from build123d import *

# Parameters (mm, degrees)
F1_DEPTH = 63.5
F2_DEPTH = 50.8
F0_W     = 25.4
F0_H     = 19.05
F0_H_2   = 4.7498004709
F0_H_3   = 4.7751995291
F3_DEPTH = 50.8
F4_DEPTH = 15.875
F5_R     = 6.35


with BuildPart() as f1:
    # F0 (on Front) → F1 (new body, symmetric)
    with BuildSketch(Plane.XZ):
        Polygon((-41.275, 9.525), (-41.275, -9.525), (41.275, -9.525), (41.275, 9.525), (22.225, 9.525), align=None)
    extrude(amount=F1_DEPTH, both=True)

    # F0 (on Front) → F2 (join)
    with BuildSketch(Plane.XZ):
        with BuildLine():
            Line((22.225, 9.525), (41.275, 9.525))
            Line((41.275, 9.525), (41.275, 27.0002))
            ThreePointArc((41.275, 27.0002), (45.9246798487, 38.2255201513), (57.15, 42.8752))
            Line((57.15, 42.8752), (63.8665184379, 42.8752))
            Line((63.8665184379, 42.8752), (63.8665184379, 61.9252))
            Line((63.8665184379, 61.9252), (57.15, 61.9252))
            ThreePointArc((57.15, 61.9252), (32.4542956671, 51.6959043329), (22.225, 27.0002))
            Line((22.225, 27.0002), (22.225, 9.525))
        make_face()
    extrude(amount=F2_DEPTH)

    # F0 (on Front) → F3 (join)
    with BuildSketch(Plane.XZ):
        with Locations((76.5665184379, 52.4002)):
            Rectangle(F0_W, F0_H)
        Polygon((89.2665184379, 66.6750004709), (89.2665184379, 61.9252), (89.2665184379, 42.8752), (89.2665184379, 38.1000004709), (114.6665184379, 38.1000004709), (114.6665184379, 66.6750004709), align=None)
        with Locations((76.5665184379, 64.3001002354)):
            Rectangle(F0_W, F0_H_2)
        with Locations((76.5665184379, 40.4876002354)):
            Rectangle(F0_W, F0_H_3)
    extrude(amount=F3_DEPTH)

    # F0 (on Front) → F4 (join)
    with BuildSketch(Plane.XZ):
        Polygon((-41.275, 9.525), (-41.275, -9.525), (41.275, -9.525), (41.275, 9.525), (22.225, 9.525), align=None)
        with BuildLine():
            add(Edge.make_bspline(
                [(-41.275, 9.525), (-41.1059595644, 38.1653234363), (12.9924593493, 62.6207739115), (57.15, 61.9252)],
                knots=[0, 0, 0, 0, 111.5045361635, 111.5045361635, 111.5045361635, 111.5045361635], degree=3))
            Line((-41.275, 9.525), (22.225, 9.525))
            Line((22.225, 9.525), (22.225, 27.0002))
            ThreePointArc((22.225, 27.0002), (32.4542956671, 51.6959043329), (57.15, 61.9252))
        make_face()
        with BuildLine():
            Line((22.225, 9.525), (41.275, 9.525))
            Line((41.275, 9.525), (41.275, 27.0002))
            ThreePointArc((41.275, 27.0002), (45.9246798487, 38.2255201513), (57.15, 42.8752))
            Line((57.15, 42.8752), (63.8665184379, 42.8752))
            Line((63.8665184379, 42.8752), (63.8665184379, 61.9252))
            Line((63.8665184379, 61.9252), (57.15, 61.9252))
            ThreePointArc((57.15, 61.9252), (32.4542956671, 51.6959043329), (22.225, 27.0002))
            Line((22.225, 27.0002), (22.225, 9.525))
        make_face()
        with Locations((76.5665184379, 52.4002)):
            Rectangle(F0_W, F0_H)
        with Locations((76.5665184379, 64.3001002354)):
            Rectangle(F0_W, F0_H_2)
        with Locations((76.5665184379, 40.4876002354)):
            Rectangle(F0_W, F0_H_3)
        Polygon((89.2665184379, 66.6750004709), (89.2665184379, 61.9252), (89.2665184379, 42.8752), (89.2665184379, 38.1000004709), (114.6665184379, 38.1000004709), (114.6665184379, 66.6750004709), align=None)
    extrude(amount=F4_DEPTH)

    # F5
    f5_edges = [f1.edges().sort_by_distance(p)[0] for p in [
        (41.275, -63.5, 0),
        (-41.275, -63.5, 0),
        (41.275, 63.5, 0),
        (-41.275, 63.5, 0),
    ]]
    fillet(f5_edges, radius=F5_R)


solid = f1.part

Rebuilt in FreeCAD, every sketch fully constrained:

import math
import FreeCAD as App
import Part
import Sketcher
from FreeCAD import Vector
Q = App.Units.Quantity


def edges_at(feature, points):
    """Names of the edges that pass closest to the given points."""
    edges = feature.Shape.Edges
    near = lambda p: min(range(len(edges)), key=lambda i: edges[i].distToShape(Part.Vertex(*p))[0])
    return sorted({f"Edge{near(p) + 1}" for p in points})

doc = App.newDocument("Part")
body = doc.addObject("PartDesign::Body", "Body")

sketch1 = body.newObject("Sketcher::SketchObject", "Sketch")
sketch1.AttachmentSupport = (doc.getObject("XZ_Plane"), [""])
sketch1.MapMode = "FlatFace"
sketch1.addGeometry(Part.LineSegment(Vector(-41, 10, 0), Vector(-41, -10, 0)), False)
sketch1.addGeometry(Part.LineSegment(Vector(-41, -10, 0), Vector(41, -10, 0)), False)
sketch1.addGeometry(Part.LineSegment(Vector(41, -10, 0), Vector(41, 10, 0)), False)
sketch1.addGeometry(Part.LineSegment(Vector(41, 10, 0), Vector(-41, 10, 0)), False)
sketch1.addConstraint(Sketcher.Constraint("Coincident", 0, 2, 1, 1))
sketch1.addConstraint(Sketcher.Constraint("Coincident", 1, 2, 2, 1))
sketch1.addConstraint(Sketcher.Constraint("Coincident", 2, 2, 3, 1))
sketch1.addConstraint(Sketcher.Constraint("Coincident", 3, 2, 0, 1))
sketch1.addConstraint(Sketcher.Constraint("Vertical", 0))
sketch1.addConstraint(Sketcher.Constraint("Horizontal", 1))
sketch1.addConstraint(Sketcher.Constraint("Vertical", 2))
sketch1.addConstraint(Sketcher.Constraint("Horizontal", 3))
sketch1.addConstraint(Sketcher.Constraint("Symmetric", 0, 2, 2, 2, -1, 1))
sketch1.addConstraint(Sketcher.Constraint("DistanceX", 1, 1, 1, 2, Q("3.25 in")))
sketch1.addConstraint(Sketcher.Constraint("DistanceY", 0, 2, 0, 1, Q("0.75 in")))
pad1 = body.newObject("PartDesign::Pad", "Pad")
pad1.Profile = sketch1
pad1.Length = Q("5 in")
pad1.Midplane = True

sketch2 = body.newObject("Sketcher::SketchObject", "Sketch001")
sketch2.AttachmentSupport = (doc.getObject("XZ_Plane"), [""])
sketch2.MapMode = "FlatFace"
sketch2.addGeometry(Part.LineSegment(Vector(22, 10, 0), Vector(41, 10, 0)), False)
sketch2.addGeometry(Part.LineSegment(Vector(41, 10, 0), Vector(41, 27, 0)), False)
sketch2.addGeometry(Part.ArcOfCircle(Part.Circle(Vector(57, 27, 0), Vector(0, 0, 1), 16), math.radians(90), math.radians(180)), False)
sketch2.addGeometry(Part.LineSegment(Vector(57, 43, 0), Vector(64, 43, 0)), False)
sketch2.addGeometry(Part.LineSegment(Vector(64, 43, 0), Vector(64, 62, 0)), False)
sketch2.addGeometry(Part.LineSegment(Vector(64, 62, 0), Vector(57, 62, 0)), False)
sketch2.addGeometry(Part.ArcOfCircle(Part.Circle(Vector(57, 27, 0), Vector(0, 0, 1), 35), math.radians(90), math.radians(180)), False)
sketch2.addGeometry(Part.LineSegment(Vector(22, 27, 0), Vector(22, 10, 0)), False)
sketch2.addConstraint(Sketcher.Constraint("Coincident", 0, 2, 1, 1))
sketch2.addConstraint(Sketcher.Constraint("Tangent", 1, 2, 2, 2))
sketch2.addConstraint(Sketcher.Constraint("Tangent", 2, 1, 3, 1))
sketch2.addConstraint(Sketcher.Constraint("Coincident", 3, 2, 4, 1))
sketch2.addConstraint(Sketcher.Constraint("Coincident", 4, 2, 5, 1))
sketch2.addConstraint(Sketcher.Constraint("Tangent", 5, 2, 6, 1))
sketch2.addConstraint(Sketcher.Constraint("Tangent", 6, 2, 7, 1))
sketch2.addConstraint(Sketcher.Constraint("Coincident", 7, 2, 0, 1))
sketch2.addConstraint(Sketcher.Constraint("Horizontal", 0))
sketch2.addConstraint(Sketcher.Constraint("Vertical", 1))
sketch2.addConstraint(Sketcher.Constraint("Horizontal", 3))
sketch2.addConstraint(Sketcher.Constraint("Vertical", 4))
sketch2.addConstraint(Sketcher.Constraint("Horizontal", 5))
sketch2.addConstraint(Sketcher.Constraint("Vertical", 7))
sketch2.addConstraint(Sketcher.Constraint("Coincident", 6, 3, 2, 3))
sketch2.addConstraint(Sketcher.Constraint("Radius", 2, Q("0.625 in")))
sketch2.addConstraint(Sketcher.Constraint("Radius", 6, Q("1.375 in")))
sketch2.addConstraint(Sketcher.Constraint("DistanceY", 1, 1, 1, 2, Q("0.688 in")))
sketch2.addConstraint(Sketcher.Constraint("DistanceX", -1, 1, 2, 3, Q("2.25 in")))
sketch2.addConstraint(Sketcher.Constraint("DistanceY", -1, 1, 2, 3, Q("1.063 in")))
sketch2.addConstraint(Sketcher.Constraint("DistanceX", 3, 1, 3, 2, 6.716518))
pad2 = body.newObject("PartDesign::Pad", "Pad001")
pad2.Profile = sketch2
pad2.Length = Q("2 in")

sketch3 = body.newObject("Sketcher::SketchObject", "Sketch002")
sketch3.AttachmentSupport = (doc.getObject("XZ_Plane"), [""])
sketch3.MapMode = "FlatFace"
sketch3.addGeometry(Part.LineSegment(Vector(115, 38, 0), Vector(115, 67, 0)), False)
sketch3.addGeometry(Part.LineSegment(Vector(115, 67, 0), Vector(64, 67, 0)), False)
sketch3.addGeometry(Part.LineSegment(Vector(64, 67, 0), Vector(64, 38, 0)), False)
sketch3.addGeometry(Part.LineSegment(Vector(64, 38, 0), Vector(115, 38, 0)), False)
sketch3.addConstraint(Sketcher.Constraint("Coincident", 0, 2, 1, 1))
sketch3.addConstraint(Sketcher.Constraint("Coincident", 1, 2, 2, 1))
sketch3.addConstraint(Sketcher.Constraint("Coincident", 2, 2, 3, 1))
sketch3.addConstraint(Sketcher.Constraint("Coincident", 3, 2, 0, 1))
sketch3.addConstraint(Sketcher.Constraint("Vertical", 0))
sketch3.addConstraint(Sketcher.Constraint("Horizontal", 1))
sketch3.addConstraint(Sketcher.Constraint("Vertical", 2))
sketch3.addConstraint(Sketcher.Constraint("Horizontal", 3))
sketch3.addConstraint(Sketcher.Constraint("DistanceX", 1, 2, 1, 1, Q("2 in")))
sketch3.addConstraint(Sketcher.Constraint("DistanceY", -1, 1, 2, 2, Q("1.5 in")))
sketch3.addConstraint(Sketcher.Constraint("DistanceY", 0, 1, 0, 2, Q("1.125 in")))
sketch3.addConstraint(Sketcher.Constraint("DistanceX", -1, 1, 0, 2, 114.666518))
pad3 = body.newObject("PartDesign::Pad", "Pad002")
pad3.Profile = sketch3
pad3.Length = Q("2 in")

sketch4 = body.newObject("Sketcher::SketchObject", "Sketch003")
sketch4.AttachmentSupport = (doc.getObject("XZ_Plane"), [""])
sketch4.MapMode = "FlatFace"
sketch4.addGeometry(Part.LineSegment(Vector(-41.275, 9.525, 0), Vector(-41.275, -9.525, 0)), False)
sketch4.addGeometry(Part.LineSegment(Vector(-41.275, -9.525, 0), Vector(41.275, -9.525, 0)), False)
sketch4.addGeometry(Part.LineSegment(Vector(41.275, -9.525, 0), Vector(41.275, 27.0002, 0)), False)
sketch4.addGeometry(Part.ArcOfCircle(Part.Circle(Vector(57.15, 27.0002, 0), Vector(0, 0, 1), 15.875), math.radians(90), math.radians(180)), False)
sketch4.addGeometry(Part.LineSegment(Vector(57.15, 42.8752, 0), Vector(63.866518, 42.8752, 0)), False)
sketch4.addGeometry(Part.LineSegment(Vector(63.866518, 42.8752, 0), Vector(63.866518, 38.1, 0)), False)
sketch4.addGeometry(Part.LineSegment(Vector(63.866518, 38.1, 0), Vector(114.666518, 38.1, 0)), False)
sketch4.addGeometry(Part.LineSegment(Vector(114.666518, 38.1, 0), Vector(114.666518, 66.675, 0)), False)
sketch4.addGeometry(Part.LineSegment(Vector(114.666518, 66.675, 0), Vector(63.866518, 66.675, 0)), False)
sketch4.addGeometry(Part.LineSegment(Vector(63.866518, 66.675, 0), Vector(63.866518, 61.9252, 0)), False)
sketch4.addGeometry(Part.LineSegment(Vector(63.866518, 61.9252, 0), Vector(57.15, 61.9252, 0)), False)
sketch4.addGeometry(Part.BSplineCurve([Vector(-41.275, 9.525, 0), Vector(-41.10596, 38.165323, 0), Vector(12.992459, 62.620774, 0), Vector(57.15, 61.9252, 0)], [4, 4], [0, 111.504536164], False, 3, [1, 1, 1, 1], False), False)
sketch4.addConstraint(Sketcher.Constraint("Block", 11))
sketch4.addConstraint(Sketcher.Constraint("Coincident", 0, 2, 1, 1))
sketch4.addConstraint(Sketcher.Constraint("Coincident", 1, 2, 2, 1))
sketch4.addConstraint(Sketcher.Constraint("Tangent", 2, 2, 3, 2))
sketch4.addConstraint(Sketcher.Constraint("Tangent", 3, 1, 4, 1))
sketch4.addConstraint(Sketcher.Constraint("Coincident", 4, 2, 5, 1))
sketch4.addConstraint(Sketcher.Constraint("Coincident", 5, 2, 6, 1))
sketch4.addConstraint(Sketcher.Constraint("Coincident", 6, 2, 7, 1))
sketch4.addConstraint(Sketcher.Constraint("Coincident", 7, 2, 8, 1))
sketch4.addConstraint(Sketcher.Constraint("Coincident", 8, 2, 9, 1))
sketch4.addConstraint(Sketcher.Constraint("Coincident", 9, 2, 10, 1))
sketch4.addConstraint(Sketcher.Constraint("Coincident", 10, 2, 11, 2))
sketch4.addConstraint(Sketcher.Constraint("Coincident", 11, 1, 0, 1))
sketch4.addConstraint(Sketcher.Constraint("Vertical", 0))
sketch4.addConstraint(Sketcher.Constraint("Horizontal", 1))
sketch4.addConstraint(Sketcher.Constraint("Vertical", 2))
sketch4.addConstraint(Sketcher.Constraint("Horizontal", 4))
sketch4.addConstraint(Sketcher.Constraint("Vertical", 5))
sketch4.addConstraint(Sketcher.Constraint("Horizontal", 6))
sketch4.addConstraint(Sketcher.Constraint("Vertical", 7))
sketch4.addConstraint(Sketcher.Constraint("Horizontal", 8))
sketch4.addConstraint(Sketcher.Constraint("Vertical", 9))
sketch4.addConstraint(Sketcher.Constraint("Horizontal", 10))
sketch4.addConstraint(Sketcher.Constraint("Vertical", 5, 2, 8, 2))
sketch4.addConstraint(Sketcher.Constraint("Vertical", 3, 1, 10, 2))
sketch4.addConstraint(Sketcher.Constraint("DistanceX", 6, 1, 6, 2, Q("2 in")))
sketch4.addConstraint(Sketcher.Constraint("Radius", 3, Q("0.625 in")))
sketch4.addConstraint(Sketcher.Constraint("DistanceY", 0, 2, 0, 1, Q("0.75 in")))
sketch4.addConstraint(Sketcher.Constraint("DistanceY", -1, 1, 5, 2, Q("1.5 in")))
sketch4.addConstraint(Sketcher.Constraint("DistanceY", 2, 1, 2, 2, Q("1.438 in")))
sketch4.addConstraint(Sketcher.Constraint("DistanceY", 7, 1, 7, 2, Q("1.125 in")))
sketch4.addConstraint(Sketcher.Constraint("DistanceX", 4, 1, 4, 2, 6.716518))
pad4 = body.newObject("PartDesign::Pad", "Pad003")
pad4.Profile = sketch4
pad4.Length = Q("0.625 in")
doc.recompute()

fillet = body.newObject("PartDesign::Fillet", "Fillet")
fillet.Base = (pad4, edges_at(pad4, [
    (41.275, -63.5, 0),
    (-41.275, -63.5, 0),
    (41.275, 63.5, 0),
    (-41.275, 63.5, 0),
]))
fillet.Radius = Q("0.25 in")

doc.recompute()
